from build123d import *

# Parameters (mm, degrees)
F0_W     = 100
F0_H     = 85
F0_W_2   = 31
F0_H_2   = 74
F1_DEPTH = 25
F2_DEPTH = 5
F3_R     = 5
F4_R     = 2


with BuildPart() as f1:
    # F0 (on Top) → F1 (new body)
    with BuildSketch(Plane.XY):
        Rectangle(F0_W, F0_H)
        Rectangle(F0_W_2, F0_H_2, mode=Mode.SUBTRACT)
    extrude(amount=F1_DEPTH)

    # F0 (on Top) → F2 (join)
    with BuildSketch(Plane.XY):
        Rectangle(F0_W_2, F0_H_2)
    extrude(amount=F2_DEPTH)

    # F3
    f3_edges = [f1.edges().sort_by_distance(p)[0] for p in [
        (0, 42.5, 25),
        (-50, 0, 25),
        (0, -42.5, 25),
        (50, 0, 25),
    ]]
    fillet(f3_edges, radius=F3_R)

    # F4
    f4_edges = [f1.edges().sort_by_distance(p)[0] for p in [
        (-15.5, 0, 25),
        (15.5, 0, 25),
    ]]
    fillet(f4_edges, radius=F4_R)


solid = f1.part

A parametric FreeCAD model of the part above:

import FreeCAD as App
import Part
import Sketcher
from FreeCAD import Vector
Q = App.Units.Quantity


def edges_at(feature, points):
    """Names of the edges that pass closest to the given points."""
    edges = feature.Shape.Edges
    near = lambda p: min(range(len(edges)), key=lambda i: edges[i].distToShape(Part.Vertex(*p))[0])
    return sorted({f"Edge{near(p) + 1}" for p in points})


def add_polygon(sketch, points):
    """Adds a closed chain of lines whose ends are joined by coincident constraints."""
    first, n = sketch.GeometryCount, len(points)
    for a, b in zip(points, points[1:] + points[:1]):
        sketch.addGeometry(Part.LineSegment(App.Vector(*a, 0), App.Vector(*b, 0)), False)
    for i in range(n):
        sketch.addConstraint(Sketcher.Constraint("Coincident", first + i, 2, first + (i + 1) % n, 1))

doc = App.newDocument("Part")
body = doc.addObject("PartDesign::Body", "Body")

sketch1 = doc.addObject("Sketcher::SketchObject", "Sketch")
body.addObject(sketch1)
sketch1.AttachmentSupport = (doc.XY_Plane, [""])
sketch1.MapMode = "FlatFace"
add_polygon(sketch1, [(-50, 42), (-50, -42), (50, -42), (50, 42)])
add_polygon(sketch1, [(16, -37), (-16, -37), (-16, 37), (16, 37)])
sketch1.addConstraint([
    Sketcher.Constraint("Vertical", 0),
    Sketcher.Constraint("Horizontal", 1),
    Sketcher.Constraint("Vertical", 2),
    Sketcher.Constraint("Horizontal", 3),
    Sketcher.Constraint("Horizontal", 4),
    Sketcher.Constraint("Vertical", 5),
    Sketcher.Constraint("Horizontal", 6),
    Sketcher.Constraint("Vertical", 7),
    Sketcher.Constraint("Symmetric", 0, 2, 2, 2, -1, 1),
    Sketcher.Constraint("Symmetric", 4, 2, 6, 2, -1, 1),
    Sketcher.Constraint("DistanceX", 1, 1, 1, 2, Q("100 mm")),
    Sketcher.Constraint("DistanceX", 4, 2, 4, 1, Q("31 mm")),
    Sketcher.Constraint("DistanceY", 0, 2, 0, 1, Q("85 mm")),
    Sketcher.Constraint("DistanceY", 5, 1, 5, 2, Q("74 mm")),
])
pad1 = doc.addObject("PartDesign::Pad", "Pad")
body.addObject(pad1)
pad1.Profile = sketch1
pad1.Length = 25

sketch2 = doc.addObject("Sketcher::SketchObject", "Sketch001")
body.addObject(sketch2)
sketch2.AttachmentSupport = (doc.XY_Plane, [""])
sketch2.MapMode = "FlatFace"
add_polygon(sketch2, [(-16, 37), (-16, -37), (16, -37), (16, 37)])
sketch2.addConstraint([
    Sketcher.Constraint("Vertical", 0),
    Sketcher.Constraint("Horizontal", 1),
    Sketcher.Constraint("Vertical", 2),
    Sketcher.Constraint("Horizontal", 3),
    Sketcher.Constraint("Symmetric", 0, 2, 2, 2, -1, 1),
    Sketcher.Constraint("DistanceX", 1, 1, 1, 2, Q("31 mm")),
    Sketcher.Constraint("DistanceY", 0, 2, 0, 1, Q("74 mm")),
])
pad2 = doc.addObject("PartDesign::Pad", "Pad001")
body.addObject(pad2)
pad2.Profile = sketch2
pad2.Length = 5
doc.recompute()

fillet = doc.addObject("PartDesign::Fillet", "Fillet")
body.addObject(fillet)
fillet.Base = (pad2, edges_at(pad2, [
    (0, 42.5, 25),
    (-50, 0, 25),
    (0, -42.5, 25),
    (50, 0, 25),
]))
fillet.Radius = 5
doc.recompute()

fillet2 = doc.addObject("PartDesign::Fillet", "Fillet001")
body.addObject(fillet2)
fillet2.Base = (fillet, edges_at(fillet, [(-15.5, 0, 25), (15.5, 0, 25)]))
fillet2.Radius = 2

doc.recompute()
